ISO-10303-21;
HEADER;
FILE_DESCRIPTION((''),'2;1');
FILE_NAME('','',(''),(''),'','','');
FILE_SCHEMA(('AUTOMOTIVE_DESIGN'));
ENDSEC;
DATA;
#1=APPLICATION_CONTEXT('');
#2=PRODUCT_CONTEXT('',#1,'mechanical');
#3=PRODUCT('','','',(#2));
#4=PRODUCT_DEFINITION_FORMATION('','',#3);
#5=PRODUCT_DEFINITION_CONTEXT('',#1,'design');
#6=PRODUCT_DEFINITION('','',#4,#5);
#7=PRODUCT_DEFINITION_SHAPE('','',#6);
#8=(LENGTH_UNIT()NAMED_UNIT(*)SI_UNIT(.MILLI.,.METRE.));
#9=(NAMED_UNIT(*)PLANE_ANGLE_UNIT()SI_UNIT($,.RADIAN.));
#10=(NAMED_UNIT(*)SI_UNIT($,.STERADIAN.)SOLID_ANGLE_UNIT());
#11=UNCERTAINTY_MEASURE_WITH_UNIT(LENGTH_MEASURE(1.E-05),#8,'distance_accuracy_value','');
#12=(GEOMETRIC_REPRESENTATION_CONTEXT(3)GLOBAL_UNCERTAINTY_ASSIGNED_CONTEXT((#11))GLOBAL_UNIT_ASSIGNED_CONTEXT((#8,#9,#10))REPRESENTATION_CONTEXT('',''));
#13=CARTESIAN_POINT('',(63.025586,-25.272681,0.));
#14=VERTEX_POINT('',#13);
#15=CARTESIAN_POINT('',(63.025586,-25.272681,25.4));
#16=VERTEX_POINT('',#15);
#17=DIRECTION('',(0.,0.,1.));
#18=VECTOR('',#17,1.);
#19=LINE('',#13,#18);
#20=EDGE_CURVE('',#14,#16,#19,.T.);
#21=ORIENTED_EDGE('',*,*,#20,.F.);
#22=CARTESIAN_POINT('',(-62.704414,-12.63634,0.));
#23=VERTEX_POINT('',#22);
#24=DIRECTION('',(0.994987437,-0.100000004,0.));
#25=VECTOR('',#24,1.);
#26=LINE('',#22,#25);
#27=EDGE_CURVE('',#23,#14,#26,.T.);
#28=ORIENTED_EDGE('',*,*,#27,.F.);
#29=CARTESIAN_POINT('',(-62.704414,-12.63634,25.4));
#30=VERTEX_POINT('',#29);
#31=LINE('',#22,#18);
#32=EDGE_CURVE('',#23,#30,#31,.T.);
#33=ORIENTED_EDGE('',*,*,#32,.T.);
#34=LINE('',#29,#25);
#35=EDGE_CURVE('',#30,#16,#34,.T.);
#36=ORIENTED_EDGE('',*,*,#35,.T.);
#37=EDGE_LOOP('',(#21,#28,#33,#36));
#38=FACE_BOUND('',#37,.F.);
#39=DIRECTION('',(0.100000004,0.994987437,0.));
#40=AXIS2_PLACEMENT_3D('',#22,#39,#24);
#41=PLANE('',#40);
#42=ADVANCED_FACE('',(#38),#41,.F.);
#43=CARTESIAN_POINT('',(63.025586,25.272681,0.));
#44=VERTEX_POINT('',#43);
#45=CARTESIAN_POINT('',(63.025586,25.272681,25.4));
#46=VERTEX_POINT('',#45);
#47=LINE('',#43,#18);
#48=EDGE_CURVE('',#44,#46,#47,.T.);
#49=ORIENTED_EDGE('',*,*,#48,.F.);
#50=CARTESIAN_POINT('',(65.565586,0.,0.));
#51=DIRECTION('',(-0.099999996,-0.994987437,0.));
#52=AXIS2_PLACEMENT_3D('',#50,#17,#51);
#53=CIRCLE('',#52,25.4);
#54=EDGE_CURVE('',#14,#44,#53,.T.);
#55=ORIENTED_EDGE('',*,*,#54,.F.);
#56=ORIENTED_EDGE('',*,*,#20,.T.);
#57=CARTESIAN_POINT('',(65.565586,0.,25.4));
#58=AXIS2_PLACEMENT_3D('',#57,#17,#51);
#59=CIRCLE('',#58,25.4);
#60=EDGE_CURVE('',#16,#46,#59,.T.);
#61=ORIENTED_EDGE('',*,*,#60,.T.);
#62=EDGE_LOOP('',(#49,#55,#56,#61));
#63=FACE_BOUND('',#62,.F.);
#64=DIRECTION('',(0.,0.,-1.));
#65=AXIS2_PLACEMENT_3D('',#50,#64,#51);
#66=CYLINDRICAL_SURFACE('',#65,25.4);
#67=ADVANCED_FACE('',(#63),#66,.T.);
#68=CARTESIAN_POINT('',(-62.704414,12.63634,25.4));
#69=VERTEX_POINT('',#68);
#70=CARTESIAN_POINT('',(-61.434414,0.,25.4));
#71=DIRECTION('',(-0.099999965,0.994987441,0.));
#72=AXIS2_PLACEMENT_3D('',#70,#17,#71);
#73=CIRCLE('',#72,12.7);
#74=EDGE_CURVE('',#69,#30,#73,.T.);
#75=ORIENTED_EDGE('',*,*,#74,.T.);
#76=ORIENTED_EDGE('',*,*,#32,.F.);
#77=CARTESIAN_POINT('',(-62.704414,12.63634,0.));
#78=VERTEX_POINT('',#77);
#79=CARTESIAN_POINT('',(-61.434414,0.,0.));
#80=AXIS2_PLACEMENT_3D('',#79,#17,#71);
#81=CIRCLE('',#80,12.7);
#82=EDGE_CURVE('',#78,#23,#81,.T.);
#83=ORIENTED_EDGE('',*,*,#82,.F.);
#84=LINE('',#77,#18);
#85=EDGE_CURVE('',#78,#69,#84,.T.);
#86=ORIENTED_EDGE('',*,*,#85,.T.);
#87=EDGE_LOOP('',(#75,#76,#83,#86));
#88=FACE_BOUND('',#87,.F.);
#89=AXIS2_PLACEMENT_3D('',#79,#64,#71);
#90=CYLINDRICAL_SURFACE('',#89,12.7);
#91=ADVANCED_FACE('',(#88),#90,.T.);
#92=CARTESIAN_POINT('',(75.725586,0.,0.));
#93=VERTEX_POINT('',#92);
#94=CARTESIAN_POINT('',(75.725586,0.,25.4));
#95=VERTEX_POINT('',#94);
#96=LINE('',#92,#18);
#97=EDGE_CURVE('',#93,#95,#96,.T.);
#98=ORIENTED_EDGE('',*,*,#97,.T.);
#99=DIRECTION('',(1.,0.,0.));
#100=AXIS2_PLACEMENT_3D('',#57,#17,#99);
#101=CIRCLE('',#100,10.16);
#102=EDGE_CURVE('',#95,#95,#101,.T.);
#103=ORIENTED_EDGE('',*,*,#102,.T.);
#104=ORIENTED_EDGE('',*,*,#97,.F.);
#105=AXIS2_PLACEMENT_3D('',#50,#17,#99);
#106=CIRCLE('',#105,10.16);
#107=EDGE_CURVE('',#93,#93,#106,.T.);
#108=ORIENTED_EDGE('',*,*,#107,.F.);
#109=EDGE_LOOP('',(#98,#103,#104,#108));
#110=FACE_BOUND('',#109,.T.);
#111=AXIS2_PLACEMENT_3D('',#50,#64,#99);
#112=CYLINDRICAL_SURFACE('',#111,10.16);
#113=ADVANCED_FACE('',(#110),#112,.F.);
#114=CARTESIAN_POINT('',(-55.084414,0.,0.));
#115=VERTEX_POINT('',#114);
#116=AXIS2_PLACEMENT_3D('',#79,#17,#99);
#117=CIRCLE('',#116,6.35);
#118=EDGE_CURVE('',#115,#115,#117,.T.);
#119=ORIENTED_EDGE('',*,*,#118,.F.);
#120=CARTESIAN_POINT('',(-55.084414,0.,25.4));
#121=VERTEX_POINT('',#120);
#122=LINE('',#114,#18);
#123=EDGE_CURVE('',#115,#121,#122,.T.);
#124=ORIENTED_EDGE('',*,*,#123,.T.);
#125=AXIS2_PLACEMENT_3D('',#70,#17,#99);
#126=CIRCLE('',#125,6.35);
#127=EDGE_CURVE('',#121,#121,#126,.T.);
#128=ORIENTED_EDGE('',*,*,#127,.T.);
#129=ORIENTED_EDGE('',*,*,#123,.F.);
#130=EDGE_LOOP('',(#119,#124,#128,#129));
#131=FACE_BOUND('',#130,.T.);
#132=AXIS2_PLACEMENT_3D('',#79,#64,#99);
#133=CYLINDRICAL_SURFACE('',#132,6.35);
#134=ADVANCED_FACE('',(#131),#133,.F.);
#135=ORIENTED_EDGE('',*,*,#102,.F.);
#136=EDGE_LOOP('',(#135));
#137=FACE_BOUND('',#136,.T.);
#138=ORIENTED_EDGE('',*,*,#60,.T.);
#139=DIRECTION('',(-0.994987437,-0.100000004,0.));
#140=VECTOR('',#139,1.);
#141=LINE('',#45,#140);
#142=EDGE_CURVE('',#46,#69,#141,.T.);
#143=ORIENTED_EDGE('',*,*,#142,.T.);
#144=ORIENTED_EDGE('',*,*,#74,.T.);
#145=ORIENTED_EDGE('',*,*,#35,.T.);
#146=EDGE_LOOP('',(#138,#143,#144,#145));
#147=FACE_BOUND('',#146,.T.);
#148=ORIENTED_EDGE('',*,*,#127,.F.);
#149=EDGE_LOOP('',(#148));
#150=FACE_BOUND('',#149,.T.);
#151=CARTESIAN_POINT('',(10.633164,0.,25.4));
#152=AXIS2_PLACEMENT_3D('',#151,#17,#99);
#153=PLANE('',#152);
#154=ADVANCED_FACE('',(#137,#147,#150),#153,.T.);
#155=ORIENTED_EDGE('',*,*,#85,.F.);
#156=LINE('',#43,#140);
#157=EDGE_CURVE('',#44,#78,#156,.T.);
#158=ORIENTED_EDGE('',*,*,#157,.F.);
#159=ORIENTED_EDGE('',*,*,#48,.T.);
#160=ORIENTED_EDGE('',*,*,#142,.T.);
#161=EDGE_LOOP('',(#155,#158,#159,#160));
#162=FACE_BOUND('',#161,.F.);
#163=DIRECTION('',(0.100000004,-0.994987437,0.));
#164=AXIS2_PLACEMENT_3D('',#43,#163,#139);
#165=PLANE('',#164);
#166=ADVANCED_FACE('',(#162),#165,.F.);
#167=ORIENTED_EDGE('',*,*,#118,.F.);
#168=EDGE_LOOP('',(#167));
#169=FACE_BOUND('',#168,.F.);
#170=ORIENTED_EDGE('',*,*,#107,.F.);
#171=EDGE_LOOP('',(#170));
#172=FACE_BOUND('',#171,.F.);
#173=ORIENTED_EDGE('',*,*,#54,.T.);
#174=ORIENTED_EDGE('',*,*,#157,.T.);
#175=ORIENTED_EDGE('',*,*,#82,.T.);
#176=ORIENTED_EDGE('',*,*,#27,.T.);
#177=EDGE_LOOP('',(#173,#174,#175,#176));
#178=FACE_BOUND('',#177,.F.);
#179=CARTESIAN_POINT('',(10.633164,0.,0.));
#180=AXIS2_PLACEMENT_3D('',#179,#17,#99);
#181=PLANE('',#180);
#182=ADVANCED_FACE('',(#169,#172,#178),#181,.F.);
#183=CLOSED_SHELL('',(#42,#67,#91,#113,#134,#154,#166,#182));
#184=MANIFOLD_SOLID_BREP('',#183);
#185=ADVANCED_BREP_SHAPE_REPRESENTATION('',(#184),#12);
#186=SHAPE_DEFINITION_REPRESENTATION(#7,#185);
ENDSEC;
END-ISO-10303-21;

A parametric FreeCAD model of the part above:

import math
import FreeCAD as App
import Part
import Sketcher
Q = App.Units.Quantity

doc = App.newDocument("Part")
body = doc.addObject("PartDesign::Body", "Body")

# Sketch on XY plane
sketch1 = doc.addObject("Sketcher::SketchObject", "Sketch")
body.addObject(sketch1)
sketch1.AttachmentSupport = (doc.XY_Plane, [""])
sketch1.MapMode = "FlatFace"
sketch1.addGeometry(Part.LineSegment(App.Vector(63, 25, 0), App.Vector(-63, 13, 0)), False)
sketch1.addGeometry(Part.ArcOfCircle(Part.Circle(App.Vector(-61, 0, 0), App.Vector(0, 0, 1), 13), math.radians(96), math.radians(264)), False)
sketch1.addGeometry(Part.LineSegment(App.Vector(-63, -13, 0), App.Vector(63, -25, 0)), False)
sketch1.addGeometry(Part.ArcOfCircle(Part.Circle(App.Vector(66, 0, 0), App.Vector(0, 0, 1), 25), math.radians(-96), math.radians(96)), False)
sketch1.addGeometry(Part.Circle(App.Vector(-61, 0, 0), App.Vector(0, 0, 1), 6), False)
sketch1.addGeometry(Part.Circle(App.Vector(66, 0, 0), App.Vector(0, 0, 1), 10), False)
sketch1.addConstraint(Sketcher.Constraint("Tangent", 0, 2, 1, 1))
sketch1.addConstraint(Sketcher.Constraint("Tangent", 1, 2, 2, 1))
sketch1.addConstraint(Sketcher.Constraint("Tangent", 2, 2, 3, 1))
sketch1.addConstraint(Sketcher.Constraint("Tangent", 3, 2, 0, 1))
sketch1.addConstraint(Sketcher.Constraint("Coincident", 4, 3, 1, 3))
sketch1.addConstraint(Sketcher.Constraint("Coincident", 5, 3, 3, 3))
sketch1.addConstraint(Sketcher.Constraint("Symmetric", 0, 2, 1, 2, -1))
sketch1.addConstraint(Sketcher.Constraint("Radius", 3, Q("1 in")))
sketch1.addConstraint(Sketcher.Constraint("Diameter", 4, Q("0.5 in")))
sketch1.addConstraint(Sketcher.Constraint("Diameter", 5, Q("0.8 in")))
sketch1.addConstraint(Sketcher.Constraint("Radius", 1, Q("0.5 in")))
sketch1.addConstraint(Sketcher.Constraint("DistanceX", 1, 3, 3, 3, Q("5 in")))
sketch1.addConstraint(Sketcher.Constraint("DistanceX", 1, 3, -1, 1, 61.434414))
pad1 = doc.addObject("PartDesign::Pad", "Pad")
body.addObject(pad1)
pad1.Profile = sketch1
pad1.Length = Q("1 in")

doc.recompute()
